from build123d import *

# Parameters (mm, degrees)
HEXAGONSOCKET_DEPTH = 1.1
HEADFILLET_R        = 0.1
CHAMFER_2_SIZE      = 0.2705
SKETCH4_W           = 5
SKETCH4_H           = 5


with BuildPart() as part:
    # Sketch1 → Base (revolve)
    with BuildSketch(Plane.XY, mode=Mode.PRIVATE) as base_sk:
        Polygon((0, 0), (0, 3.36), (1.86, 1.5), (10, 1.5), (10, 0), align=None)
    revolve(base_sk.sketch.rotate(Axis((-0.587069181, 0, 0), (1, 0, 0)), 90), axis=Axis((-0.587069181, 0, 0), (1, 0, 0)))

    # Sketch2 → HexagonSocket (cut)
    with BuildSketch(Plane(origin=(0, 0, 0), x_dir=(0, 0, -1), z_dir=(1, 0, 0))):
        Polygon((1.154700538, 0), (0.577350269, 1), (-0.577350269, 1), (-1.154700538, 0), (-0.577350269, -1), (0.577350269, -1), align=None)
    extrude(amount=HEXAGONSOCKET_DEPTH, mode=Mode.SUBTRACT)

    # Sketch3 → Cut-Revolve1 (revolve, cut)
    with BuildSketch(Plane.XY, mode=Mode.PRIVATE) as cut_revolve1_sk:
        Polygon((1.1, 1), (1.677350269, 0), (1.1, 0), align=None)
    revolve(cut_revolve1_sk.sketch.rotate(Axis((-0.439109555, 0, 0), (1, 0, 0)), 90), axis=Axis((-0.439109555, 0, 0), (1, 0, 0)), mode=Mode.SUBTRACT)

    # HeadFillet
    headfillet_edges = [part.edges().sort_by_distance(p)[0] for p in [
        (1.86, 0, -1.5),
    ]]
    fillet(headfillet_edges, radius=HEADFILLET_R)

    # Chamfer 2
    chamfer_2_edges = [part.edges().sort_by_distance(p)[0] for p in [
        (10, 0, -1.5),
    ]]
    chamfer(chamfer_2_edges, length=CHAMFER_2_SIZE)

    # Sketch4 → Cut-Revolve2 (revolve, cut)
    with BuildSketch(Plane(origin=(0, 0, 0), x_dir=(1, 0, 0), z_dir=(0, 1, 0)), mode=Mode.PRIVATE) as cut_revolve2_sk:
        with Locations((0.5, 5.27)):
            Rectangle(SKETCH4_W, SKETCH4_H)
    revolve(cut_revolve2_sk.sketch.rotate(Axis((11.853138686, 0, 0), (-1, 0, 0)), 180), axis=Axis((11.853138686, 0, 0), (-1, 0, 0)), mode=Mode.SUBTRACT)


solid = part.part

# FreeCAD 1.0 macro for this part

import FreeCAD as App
import Part
import Sketcher
Q = App.Units.Quantity


def edges_at(feature, points):
    """Names of the edges that pass closest to the given points."""
    edges = feature.Shape.Edges
    near = lambda p: min(range(len(edges)), key=lambda i: edges[i].distToShape(Part.Vertex(*p))[0])
    return sorted({f"Edge{near(p) + 1}" for p in points})


def add_polygon(sketch, points):
    """Adds a closed chain of lines whose ends are joined by coincident constraints."""
    first, n = sketch.GeometryCount, len(points)
    for a, b in zip(points, points[1:] + points[:1]):
        sketch.addGeometry(Part.LineSegment(App.Vector(*a, 0), App.Vector(*b, 0)), False)
    for i in range(n):
        sketch.addConstraint(Sketcher.Constraint("Coincident", first + i, 2, first + (i + 1) % n, 1))

doc = App.newDocument("Part")
body = doc.addObject("PartDesign::Body", "Body")

# Sketch on XY plane
sketch1 = doc.addObject("Sketcher::SketchObject", "Sketch")
body.addObject(sketch1)
sketch1.AttachmentSupport = (doc.XY_Plane, [""])
sketch1.MapMode = "FlatFace"
add_polygon(sketch1, [(0, 3.4), (0, 0), (10, 0), (10, 1.5), (1.9, 1.5)])  # lines 0-4
sketch1.addConstraint(Sketcher.Constraint("Vertical", 0))
sketch1.addConstraint(Sketcher.Constraint("Horizontal", 1))
sketch1.addConstraint(Sketcher.Constraint("Vertical", 2))
sketch1.addConstraint(Sketcher.Constraint("Horizontal", 3))
sketch1.addConstraint(Sketcher.Constraint("Coincident", 0, 2, -1, 1))
sketch1.addConstraint(Sketcher.Constraint("DistanceX", 1, 1, 1, 2, 10.0))
sketch1.addConstraint(Sketcher.Constraint("Angle", 4, Q("135 deg")))
sketch1.addConstraint(Sketcher.Constraint("DistanceY", 2, 1, 2, 2, 1.5))
sketch1.addConstraint(Sketcher.Constraint("DistanceX", 3, 2, 3, 1, 8.14))
revolution = doc.addObject("PartDesign::Revolution", "Revolution")
body.addObject(revolution)
revolution.Profile = sketch1
revolution.ReferenceAxis = (sketch1, ["H_Axis"])
revolution.Angle = 360

# Sketch on YZ plane
sketch2 = doc.addObject("Sketcher::SketchObject", "Sketch001")
body.addObject(sketch2)
sketch2.AttachmentSupport = (doc.YZ_Plane, [""])
sketch2.MapMode = "FlatFace"
add_polygon(sketch2, [(0, -1.2), (1, -0.6), (1, 0.6), (0, 1.2), (-1, 0.6), (-1, -0.6)])  # lines 0-5
sketch2.addConstraint(Sketcher.Constraint("Vertical", 1))
sketch2.addConstraint(Sketcher.Constraint("Vertical", 4))
sketch2.addConstraint(Sketcher.Constraint("Symmetric", 0, 2, 3, 2, -1, 1))
sketch2.addConstraint(Sketcher.Constraint("Symmetric", 2, 2, 5, 2, -1, 1))
sketch2.addConstraint(Sketcher.Constraint("PointOnObject", 2, 2, -2))
sketch2.addConstraint(Sketcher.Constraint("Parallel", 2, 5))
sketch2.addConstraint(Sketcher.Constraint("Horizontal", 1, 2, 3, 2))
sketch2.addConstraint(Sketcher.Constraint("Angle", 0, Q("30 deg")))
sketch2.addConstraint(Sketcher.Constraint("DistanceX", -1, 1, 0, 2, 1.0))
sketch2.addConstraint(Sketcher.Constraint("DistanceY", 1, 1, 1, 2, 1.154701))
pocket1 = doc.addObject("PartDesign::Pocket", "Pocket")
body.addObject(pocket1)
pocket1.Profile = sketch2
pocket1.Length = 1.1
pocket1.Reversed = True

# Sketch on XY plane
sketch3 = doc.addObject("Sketcher::SketchObject", "Sketch002")
body.addObject(sketch3)
sketch3.AttachmentSupport = (doc.XY_Plane, [""])
sketch3.MapMode = "FlatFace"
add_polygon(sketch3, [(1.7, 0), (1.1, 1), (1.1, 0)])  # lines 0-2
sketch3.addConstraint(Sketcher.Constraint("Vertical", 1))
sketch3.addConstraint(Sketcher.Constraint("Horizontal", 2))
sketch3.addConstraint(Sketcher.Constraint("PointOnObject", 1, 2, -1))
sketch3.addConstraint(Sketcher.Constraint("DistanceY", 1, 2, 1, 1, 1.0))
sketch3.addConstraint(Sketcher.Constraint("Angle", 0, Q("120 deg")))
sketch3.addConstraint(Sketcher.Constraint("DistanceX", -1, 1, 0, 2, 1.1))
groove = doc.addObject("PartDesign::Groove", "Groove")
body.addObject(groove)
groove.Profile = sketch3
groove.ReferenceAxis = (sketch3, ["H_Axis"])
groove.Angle = 360
doc.recompute()

fillet = doc.addObject("PartDesign::Fillet", "Fillet")
body.addObject(fillet)
fillet.Base = (groove, edges_at(groove, [(1.86, 0, -1.5)]))
fillet.Radius = 0.1
doc.recompute()

chamfer = doc.addObject("PartDesign::Chamfer", "Chamfer")
body.addObject(chamfer)
chamfer.Base = (fillet, edges_at(fillet, [(10, 0, -1.5)]))
chamfer.Size = 0.2705

# Sketch on XZ plane
sketch4 = doc.addObject("Sketcher::SketchObject", "Sketch003")
body.addObject(sketch4)
sketch4.AttachmentSupport = (doc.XZ_Plane, [""])
sketch4.MapMode = "FlatFace"
add_polygon(sketch4, [(-2, -8), (-2, -3), (3, -3), (3, -8)])  # lines 0-3
sketch4.addConstraint(Sketcher.Constraint("Vertical", 0))
sketch4.addConstraint(Sketcher.Constraint("Horizontal", 1))
sketch4.addConstraint(Sketcher.Constraint("Vertical", 2))
sketch4.addConstraint(Sketcher.Constraint("Horizontal", 3))
sketch4.addConstraint(Sketcher.Constraint("Equal", 3, 0))
sketch4.addConstraint(Sketcher.Constraint("DistanceX", 1, 1, 1, 2, 5.0))
sketch4.addConstraint(Sketcher.Constraint("DistanceX", 0, 2, -1, 1, 2.0))
sketch4.addConstraint(Sketcher.Constraint("DistanceY", 0, 2, -1, 1, 2.77))
groove2 = doc.addObject("PartDesign::Groove", "Groove001")
body.addObject(groove2)
groove2.Profile = sketch4
groove2.ReferenceAxis = (sketch4, ["H_Axis"])
groove2.Angle = 360

doc.recompute()
